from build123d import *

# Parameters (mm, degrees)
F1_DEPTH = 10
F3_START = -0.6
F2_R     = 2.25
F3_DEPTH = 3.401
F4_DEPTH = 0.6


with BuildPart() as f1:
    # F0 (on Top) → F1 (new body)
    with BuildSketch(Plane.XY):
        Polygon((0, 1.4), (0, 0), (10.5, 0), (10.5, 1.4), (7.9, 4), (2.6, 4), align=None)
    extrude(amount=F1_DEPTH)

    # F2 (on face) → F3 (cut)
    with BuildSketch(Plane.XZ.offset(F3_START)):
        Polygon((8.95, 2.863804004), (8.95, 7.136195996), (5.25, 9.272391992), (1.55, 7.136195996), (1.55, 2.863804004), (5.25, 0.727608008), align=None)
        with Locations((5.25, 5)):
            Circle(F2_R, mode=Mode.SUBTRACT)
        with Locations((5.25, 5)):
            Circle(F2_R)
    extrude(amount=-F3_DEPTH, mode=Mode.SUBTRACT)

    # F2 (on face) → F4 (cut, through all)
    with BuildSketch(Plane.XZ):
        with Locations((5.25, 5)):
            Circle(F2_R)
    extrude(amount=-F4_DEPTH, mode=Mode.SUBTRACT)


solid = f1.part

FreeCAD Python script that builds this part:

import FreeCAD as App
import Part
import Sketcher

V = App.Vector
Q = App.Units.Quantity

doc = App.newDocument("Part")
body = doc.addObject("PartDesign::Body", "Body")

# Sketch on XY plane
sketch1 = body.newObject("Sketcher::SketchObject", "Sketch")
sketch1.AttachmentSupport = (doc.getObject("XY_Plane"), [""])
sketch1.MapMode = "FlatFace"
sketch1.addGeometry(Part.LineSegment(V(0, 1.4, 0), V(0, 0, 0)), False)
sketch1.addGeometry(Part.LineSegment(V(0, 0, 0), V(10.5, 0, 0)), False)
sketch1.addGeometry(Part.LineSegment(V(10.5, 0, 0), V(10.5, 1.4, 0)), False)
sketch1.addGeometry(Part.LineSegment(V(10.5, 1.4, 0), V(7.9, 4, 0)), False)
sketch1.addGeometry(Part.LineSegment(V(7.9, 4, 0), V(2.6, 4, 0)), False)
sketch1.addGeometry(Part.LineSegment(V(2.6, 4, 0), V(0, 1.4, 0)), False)
sketch1.addConstraint(Sketcher.Constraint("Coincident", 0, 2, 1, 1))
sketch1.addConstraint(Sketcher.Constraint("Coincident", 1, 2, 2, 1))
sketch1.addConstraint(Sketcher.Constraint("Coincident", 2, 2, 3, 1))
sketch1.addConstraint(Sketcher.Constraint("Coincident", 3, 2, 4, 1))
sketch1.addConstraint(Sketcher.Constraint("Coincident", 4, 2, 5, 1))
sketch1.addConstraint(Sketcher.Constraint("Coincident", 5, 2, 0, 1))
sketch1.addConstraint(Sketcher.Constraint("Vertical", 0))
sketch1.addConstraint(Sketcher.Constraint("Horizontal", 1))
sketch1.addConstraint(Sketcher.Constraint("Vertical", 2))
sketch1.addConstraint(Sketcher.Constraint("Horizontal", 4))
sketch1.addConstraint(Sketcher.Constraint("Coincident", 0, 2, -1, 1))
sketch1.addConstraint(Sketcher.Constraint("Perpendicular", 3, 5))
sketch1.addConstraint(Sketcher.Constraint("Horizontal", 2, 2, 5, 2))
sketch1.addConstraint(Sketcher.Constraint("Equal", 3, 5))
sketch1.addConstraint(Sketcher.Constraint("DistanceX", 1, 1, 1, 2, 10.5))
sketch1.addConstraint(Sketcher.Constraint("DistanceX", 4, 2, 4, 1, 5.3))
sketch1.addConstraint(Sketcher.Constraint("DistanceY", 0, 2, 0, 1, 1.4))
pad1 = body.newObject("PartDesign::Pad", "Pad")
pad1.Profile = sketch1
pad1.Length = 10

# Sketch on XZ plane
sketch2 = body.newObject("Sketcher::SketchObject", "Sketch001")
sketch2.AttachmentSupport = (doc.getObject("XZ_Plane"), [""])
sketch2.MapMode = "FlatFace"
sketch2.AttachmentOffset = App.Placement(V(0, 0, -0.6), App.Rotation())
sketch2.addGeometry(Part.LineSegment(V(8.9, 2.9, 0), V(8.9, 7.1, 0)), False)
sketch2.addGeometry(Part.LineSegment(V(8.9, 7.1, 0), V(5.2, 9.3, 0)), False)
sketch2.addGeometry(Part.LineSegment(V(5.2, 9.3, 0), V(1.6, 7.1, 0)), False)
sketch2.addGeometry(Part.LineSegment(V(1.6, 7.1, 0), V(1.6, 2.9, 0)), False)
sketch2.addGeometry(Part.LineSegment(V(1.6, 2.9, 0), V(5.2, 0.7, 0)), False)
sketch2.addGeometry(Part.LineSegment(V(5.2, 0.7, 0), V(8.9, 2.9, 0)), False)
sketch2.addConstraint(Sketcher.Constraint("Coincident", 0, 2, 1, 1))
sketch2.addConstraint(Sketcher.Constraint("Coincident", 1, 2, 2, 1))
sketch2.addConstraint(Sketcher.Constraint("Coincident", 2, 2, 3, 1))
sketch2.addConstraint(Sketcher.Constraint("Coincident", 3, 2, 4, 1))
sketch2.addConstraint(Sketcher.Constraint("Coincident", 4, 2, 5, 1))
sketch2.addConstraint(Sketcher.Constraint("Coincident", 5, 2, 0, 1))
sketch2.addConstraint(Sketcher.Constraint("Vertical", 0))
sketch2.addConstraint(Sketcher.Constraint("Vertical", 3))
sketch2.addConstraint(Sketcher.Constraint("Parallel", 1, 4))
sketch2.addConstraint(Sketcher.Constraint("Parallel", 2, 5))
sketch2.addConstraint(Sketcher.Constraint("Horizontal", 0, 2, 2, 2))
sketch2.addConstraint(Sketcher.Constraint("Horizontal", 3, 2, 5, 2))
sketch2.addConstraint(Sketcher.Constraint("Vertical", 1, 2, 4, 2))
sketch2.addConstraint(Sketcher.Constraint("Angle", 1, Q("150 deg")))
sketch2.addConstraint(Sketcher.Constraint("DistanceX", 1, 2, 0, 2, 3.7))
sketch2.addConstraint(Sketcher.Constraint("DistanceX", -1, 1, 0, 2, 8.95))
sketch2.addConstraint(Sketcher.Constraint("DistanceY", 0, 1, 0, 2, 4.272392))
sketch2.addConstraint(Sketcher.Constraint("DistanceY", -1, 1, 1, 2, 9.272392))
pocket1 = body.newObject("PartDesign::Pocket", "Pocket")
pocket1.Profile = sketch2
pocket1.Length = 3.401

# Sketch on XZ plane
sketch3 = body.newObject("Sketcher::SketchObject", "Sketch002")
sketch3.AttachmentSupport = (doc.getObject("XZ_Plane"), [""])
sketch3.MapMode = "FlatFace"
sketch3.addGeometry(Part.Circle(V(5.2, 5, 0), V(0, 0, 1), 2.2), False)
sketch3.addConstraint(Sketcher.Constraint("Diameter", 0, 4.5))
sketch3.addConstraint(Sketcher.Constraint("DistanceY", -1, 1, 0, 3, 5.0))
sketch3.addConstraint(Sketcher.Constraint("DistanceX", -1, 1, 0, 3, 5.25))
pocket2 = body.newObject("PartDesign::Pocket", "Pocket001")
pocket2.Profile = sketch3
pocket2.Type = "ThroughAll"

doc.recompute()
